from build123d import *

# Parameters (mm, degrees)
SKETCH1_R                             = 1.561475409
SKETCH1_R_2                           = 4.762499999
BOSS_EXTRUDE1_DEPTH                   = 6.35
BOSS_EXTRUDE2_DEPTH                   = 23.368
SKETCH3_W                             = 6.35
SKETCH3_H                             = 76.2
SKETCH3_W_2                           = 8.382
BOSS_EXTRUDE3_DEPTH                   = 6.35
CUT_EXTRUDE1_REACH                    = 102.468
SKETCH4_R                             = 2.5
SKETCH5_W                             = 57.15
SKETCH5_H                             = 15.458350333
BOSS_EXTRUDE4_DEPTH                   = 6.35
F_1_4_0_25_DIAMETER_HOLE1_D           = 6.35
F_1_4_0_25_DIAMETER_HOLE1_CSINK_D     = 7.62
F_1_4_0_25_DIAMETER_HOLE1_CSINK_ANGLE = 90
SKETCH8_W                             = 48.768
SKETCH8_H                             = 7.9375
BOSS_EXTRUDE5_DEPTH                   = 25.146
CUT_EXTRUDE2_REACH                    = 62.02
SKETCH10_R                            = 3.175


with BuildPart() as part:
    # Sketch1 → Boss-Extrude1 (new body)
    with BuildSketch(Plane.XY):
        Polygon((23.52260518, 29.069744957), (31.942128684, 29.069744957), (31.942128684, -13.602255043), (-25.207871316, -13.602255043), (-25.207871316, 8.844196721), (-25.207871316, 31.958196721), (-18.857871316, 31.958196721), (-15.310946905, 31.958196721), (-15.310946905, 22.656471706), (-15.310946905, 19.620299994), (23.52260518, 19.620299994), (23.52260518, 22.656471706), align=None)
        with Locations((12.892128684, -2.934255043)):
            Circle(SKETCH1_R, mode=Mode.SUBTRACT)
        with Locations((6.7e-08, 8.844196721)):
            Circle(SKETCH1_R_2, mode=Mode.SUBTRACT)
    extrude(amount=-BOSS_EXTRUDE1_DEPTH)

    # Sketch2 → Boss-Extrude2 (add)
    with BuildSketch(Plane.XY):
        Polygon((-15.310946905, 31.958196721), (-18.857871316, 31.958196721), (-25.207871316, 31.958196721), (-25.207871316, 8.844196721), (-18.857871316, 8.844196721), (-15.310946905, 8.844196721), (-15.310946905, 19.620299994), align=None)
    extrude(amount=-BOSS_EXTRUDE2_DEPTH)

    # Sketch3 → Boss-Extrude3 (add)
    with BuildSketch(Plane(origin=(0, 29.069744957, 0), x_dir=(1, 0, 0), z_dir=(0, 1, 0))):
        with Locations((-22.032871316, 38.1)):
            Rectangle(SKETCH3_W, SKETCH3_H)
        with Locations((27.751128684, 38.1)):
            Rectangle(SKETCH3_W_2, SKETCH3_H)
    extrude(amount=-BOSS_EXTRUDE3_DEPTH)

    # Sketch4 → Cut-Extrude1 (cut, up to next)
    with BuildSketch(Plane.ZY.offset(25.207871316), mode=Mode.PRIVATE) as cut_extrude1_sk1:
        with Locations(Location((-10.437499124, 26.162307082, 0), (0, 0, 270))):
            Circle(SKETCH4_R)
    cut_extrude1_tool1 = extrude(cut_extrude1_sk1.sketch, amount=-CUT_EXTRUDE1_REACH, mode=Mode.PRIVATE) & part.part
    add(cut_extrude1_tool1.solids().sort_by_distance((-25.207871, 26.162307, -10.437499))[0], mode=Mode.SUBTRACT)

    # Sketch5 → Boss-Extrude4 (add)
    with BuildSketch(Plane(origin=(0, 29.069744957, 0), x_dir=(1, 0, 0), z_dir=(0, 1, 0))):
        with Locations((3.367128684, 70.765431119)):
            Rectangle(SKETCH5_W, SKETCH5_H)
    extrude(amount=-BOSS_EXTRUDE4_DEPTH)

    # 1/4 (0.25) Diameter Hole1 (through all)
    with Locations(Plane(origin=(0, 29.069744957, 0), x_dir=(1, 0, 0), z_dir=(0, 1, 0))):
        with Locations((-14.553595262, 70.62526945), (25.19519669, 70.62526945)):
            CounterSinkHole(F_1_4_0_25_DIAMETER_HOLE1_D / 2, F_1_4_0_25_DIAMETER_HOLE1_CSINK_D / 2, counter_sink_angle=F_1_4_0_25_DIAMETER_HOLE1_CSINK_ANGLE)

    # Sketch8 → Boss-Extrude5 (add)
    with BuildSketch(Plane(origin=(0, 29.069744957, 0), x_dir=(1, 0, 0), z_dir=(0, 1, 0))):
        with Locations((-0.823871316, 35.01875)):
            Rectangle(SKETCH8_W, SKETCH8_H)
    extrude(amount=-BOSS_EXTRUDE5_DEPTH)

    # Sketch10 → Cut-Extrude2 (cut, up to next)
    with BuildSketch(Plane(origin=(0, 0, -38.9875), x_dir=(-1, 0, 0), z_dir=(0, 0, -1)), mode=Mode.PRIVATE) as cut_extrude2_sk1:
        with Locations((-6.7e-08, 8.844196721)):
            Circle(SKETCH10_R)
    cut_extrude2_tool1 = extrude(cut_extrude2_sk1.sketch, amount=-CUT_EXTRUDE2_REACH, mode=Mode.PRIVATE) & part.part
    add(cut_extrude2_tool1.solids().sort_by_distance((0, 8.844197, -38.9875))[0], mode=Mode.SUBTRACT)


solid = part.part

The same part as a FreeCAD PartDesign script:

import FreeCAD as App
import Part
import Sketcher

V = App.Vector
Q = App.Units.Quantity

doc = App.newDocument("Part")
body = doc.addObject("PartDesign::Body", "Body")

sketch1 = body.newObject("Sketcher::SketchObject", "Sketch")
sketch1.AttachmentSupport = (doc.getObject("XY_Plane"), [""])
sketch1.MapMode = "FlatFace"
sketch1.addGeometry([
    Part.LineSegment(V(31.9, 29.1, 0), V(23.5, 29.1, 0)),
    Part.LineSegment(V(23.5, 29.1, 0), V(23.5, 19.6, 0)),
    Part.LineSegment(V(23.5, 19.6, 0), V(-15.3, 19.6, 0)),
    Part.LineSegment(V(-15.3, 19.6, 0), V(-15.3, 32, 0)),
    Part.LineSegment(V(-15.3, 32, 0), V(-25.2, 32, 0)),
    Part.LineSegment(V(-25.2, 32, 0), V(-25.2, -13.6, 0)),
    Part.LineSegment(V(-25.2, -13.6, 0), V(31.9, -13.6, 0)),
    Part.LineSegment(V(31.9, -13.6, 0), V(31.9, 29.1, 0)),
    Part.Circle(V(12.9, -2.9, 0), V(0, 0, 1), 1.6),
    Part.Circle(V(0, 8.8, 0), V(0, 0, 1), 4.8),
], False)
sketch1.addConstraint([
    Sketcher.Constraint("Coincident", 0, 2, 1, 1),
    Sketcher.Constraint("Coincident", 1, 2, 2, 1),
    Sketcher.Constraint("Coincident", 2, 2, 3, 1),
    Sketcher.Constraint("Coincident", 3, 2, 4, 1),
    Sketcher.Constraint("Coincident", 4, 2, 5, 1),
    Sketcher.Constraint("Coincident", 5, 2, 6, 1),
    Sketcher.Constraint("Coincident", 6, 2, 7, 1),
    Sketcher.Constraint("Coincident", 7, 2, 0, 1),
    Sketcher.Constraint("Horizontal", 0),
    Sketcher.Constraint("Vertical", 1),
    Sketcher.Constraint("Horizontal", 2),
    Sketcher.Constraint("Vertical", 3),
    Sketcher.Constraint("Horizontal", 4),
    Sketcher.Constraint("Vertical", 5),
    Sketcher.Constraint("Horizontal", 6),
    Sketcher.Constraint("Vertical", 7),
    Sketcher.Constraint("PointOnObject", 9, 3, -2),
    Sketcher.Constraint("Diameter", 9, Q("0.375 in")),
    Sketcher.Constraint("DistanceX", 6, 1, 6, 2, Q("2.25 in")),
    Sketcher.Constraint("DistanceY", 7, 1, 7, 2, Q("1.68 in")),
    Sketcher.Constraint("DistanceX", 5, 2, 8, 3, Q("1.5 in")),
    Sketcher.Constraint("DistanceY", 8, 3, 0, 2, Q("1.26 in")),
    Sketcher.Constraint("DistanceY", 9, 3, 3, 2, Q("0.91 in")),
    Sketcher.Constraint("Diameter", 8, 3.122951),
    Sketcher.Constraint("DistanceY", 5, 2, 5, 1, 45.560452),
    Sketcher.Constraint("DistanceY", -1, 1, 1, 2, 19.6203),
    Sketcher.Constraint("DistanceX", 0, 2, 0, 1, 8.419524),
    Sketcher.Constraint("DistanceX", 2, 2, 2, 1, 38.833552),
    Sketcher.Constraint("DistanceY", 1, 2, 1, 1, 9.449445),
    Sketcher.Constraint("DistanceX", -1, 1, 8, 3, 12.892129),
])
pad1 = body.newObject("PartDesign::Pad", "Pad")
pad1.Profile = sketch1
pad1.Length = Q("0.25 in")
pad1.Reversed = True

sketch2 = body.newObject("Sketcher::SketchObject", "Sketch001")
sketch2.AttachmentSupport = (doc.getObject("XY_Plane"), [""])
sketch2.MapMode = "FlatFace"
sketch2.addGeometry([
    Part.LineSegment(V(-15, 32, 0), V(-25, 32, 0)),
    Part.LineSegment(V(-25, 32, 0), V(-25, 9, 0)),
    Part.LineSegment(V(-25, 9, 0), V(-15, 9, 0)),
    Part.LineSegment(V(-15, 9, 0), V(-15, 32, 0)),
], False)
sketch2.addConstraint([
    Sketcher.Constraint("Coincident", 0, 2, 1, 1),
    Sketcher.Constraint("Coincident", 1, 2, 2, 1),
    Sketcher.Constraint("Coincident", 2, 2, 3, 1),
    Sketcher.Constraint("Coincident", 3, 2, 0, 1),
    Sketcher.Constraint("Horizontal", 0),
    Sketcher.Constraint("Vertical", 1),
    Sketcher.Constraint("Horizontal", 2),
    Sketcher.Constraint("Vertical", 3),
    Sketcher.Constraint("DistanceY", 1, 2, 1, 1, Q("0.91 in")),
    Sketcher.Constraint("DistanceX", 0, 2, 0, 1, 9.896924),
    Sketcher.Constraint("DistanceX", 0, 2, -1, 1, 25.207871),
    Sketcher.Constraint("DistanceY", -1, 1, 0, 2, 31.958197),
])
pad2 = body.newObject("PartDesign::Pad", "Pad001")
pad2.Profile = sketch2
pad2.Length = Q("0.92 in")
pad2.Reversed = True

sketch3 = body.newObject("Sketcher::SketchObject", "Sketch002")
sketch3.AttachmentSupport = (doc.getObject("XZ_Plane"), [""])
sketch3.MapMode = "FlatFace"
sketch3.AttachmentOffset = App.Placement(V(0, 0, -29.069745), App.Rotation())
sketch3.addGeometry([
    Part.LineSegment(V(-25, -76, 0), V(-25, 0, 0)),
    Part.LineSegment(V(-25, 0, 0), V(-19, 0, 0)),
    Part.LineSegment(V(-19, 0, 0), V(-19, -76, 0)),
    Part.LineSegment(V(-19, -76, 0), V(-25, -76, 0)),
    Part.LineSegment(V(24, -76, 0), V(24, 0, 0)),
    Part.LineSegment(V(24, 0, 0), V(32, 0, 0)),
    Part.LineSegment(V(32, 0, 0), V(32, -76, 0)),
    Part.LineSegment(V(32, -76, 0), V(24, -76, 0)),
], False)
sketch3.addConstraint([
    Sketcher.Constraint("Coincident", 0, 2, 1, 1),
    Sketcher.Constraint("Coincident", 1, 2, 2, 1),
    Sketcher.Constraint("Coincident", 2, 2, 3, 1),
    Sketcher.Constraint("Coincident", 3, 2, 0, 1),
    Sketcher.Constraint("Coincident", 4, 2, 5, 1),
    Sketcher.Constraint("Coincident", 5, 2, 6, 1),
    Sketcher.Constraint("Coincident", 6, 2, 7, 1),
    Sketcher.Constraint("Coincident", 7, 2, 4, 1),
    Sketcher.Constraint("Vertical", 0),
    Sketcher.Constraint("Horizontal", 1),
    Sketcher.Constraint("Vertical", 2),
    Sketcher.Constraint("Horizontal", 3),
    Sketcher.Constraint("Vertical", 4),
    Sketcher.Constraint("Horizontal", 5),
    Sketcher.Constraint("Vertical", 6),
    Sketcher.Constraint("Horizontal", 7),
    Sketcher.Constraint("PointOnObject", 0, 2, -1),
    Sketcher.Constraint("PointOnObject", 4, 2, -1),
    Sketcher.Constraint("Horizontal", 3, 2, 6, 2),
    Sketcher.Constraint("DistanceY", 0, 1, 0, 2, Q("3 in")),
    Sketcher.Constraint("DistanceX", 1, 2, 5, 2, Q("2 in")),
    Sketcher.Constraint("DistanceX", 1, 1, 1, 2, Q("0.25 in")),
    Sketcher.Constraint("DistanceX", 5, 1, 5, 2, Q("0.33 in")),
    Sketcher.Constraint("DistanceX", 0, 2, -1, 1, 25.207871),
])
pad3 = body.newObject("PartDesign::Pad", "Pad002")
pad3.Profile = sketch3
pad3.Length = Q("0.25 in")

sketch4 = body.newObject("Sketcher::SketchObject", "Sketch003")
sketch4.AttachmentSupport = (doc.getObject("YZ_Plane"), [""])
sketch4.MapMode = "FlatFace"
sketch4.AttachmentOffset = App.Placement(V(0, 0, -25.207871), App.Rotation())
sketch4.addGeometry(Part.Circle(V(26.2, -10.4, 0), V(0, 0, 1), 2.5), False)
sketch4.addConstraint([
    Sketcher.Constraint("Diameter", 0, 5.0),
    Sketcher.Constraint("DistanceY", 0, 3, -1, 1, 10.437499),
    Sketcher.Constraint("DistanceX", -1, 1, 0, 3, 26.162307),
])
pocket1 = body.newObject("PartDesign::Pocket", "Pocket")
pocket1.Profile = sketch4
pocket1.Type = "UpToFirst"
pocket1.Reversed = True

sketch5 = body.newObject("Sketcher::SketchObject", "Sketch004")
sketch5.AttachmentSupport = (doc.getObject("XZ_Plane"), [""])
sketch5.MapMode = "FlatFace"
sketch5.AttachmentOffset = App.Placement(V(0, 0, -29.069745), App.Rotation())
sketch5.addGeometry([
    Part.LineSegment(V(-25, -78, 0), V(-25, -63, 0)),
    Part.LineSegment(V(-25, -63, 0), V(32, -63, 0)),
    Part.LineSegment(V(32, -63, 0), V(32, -78, 0)),
    Part.LineSegment(V(32, -78, 0), V(-25, -78, 0)),
], False)
sketch5.addConstraint([
    Sketcher.Constraint("Coincident", 0, 2, 1, 1),
    Sketcher.Constraint("Coincident", 1, 2, 2, 1),
    Sketcher.Constraint("Coincident", 2, 2, 3, 1),
    Sketcher.Constraint("Coincident", 3, 2, 0, 1),
    Sketcher.Constraint("Vertical", 0),
    Sketcher.Constraint("Horizontal", 1),
    Sketcher.Constraint("Vertical", 2),
    Sketcher.Constraint("Horizontal", 3),
    Sketcher.Constraint("DistanceX", 1, 1, 1, 2, Q("2.25 in")),
    Sketcher.Constraint("DistanceY", 0, 1, 0, 2, 15.45835),
    Sketcher.Constraint("DistanceX", 0, 2, -1, 1, 25.207871),
    Sketcher.Constraint("DistanceY", 0, 2, -1, 1, 63.036256),
])
pad4 = body.newObject("PartDesign::Pad", "Pad003")
pad4.Profile = sketch5
pad4.Length = Q("0.25 in")

sketch6 = body.newObject("Sketcher::SketchObject", "Sketch005")
sketch6.AttachmentSupport = (doc.getObject("XZ_Plane"), [""])
sketch6.MapMode = "FlatFace"
sketch6.AttachmentOffset = App.Placement(V(0, 0, -29.069745), App.Rotation())
sketch6.addGeometry([
    Part.Circle(V(-14.6, -70.6, 0), V(0, 0, 1), 3.2),
    Part.Circle(V(25.2, -70.6, 0), V(0, 0, 1), 3.2),
], False)
sketch6.addConstraint([
    Sketcher.Constraint("Equal", 0, 1),
    Sketcher.Constraint("Horizontal", 0, 3, 1, 3),
    Sketcher.Constraint("Diameter", 0, Q("0.25 in")),
    Sketcher.Constraint("DistanceY", 0, 3, -1, 1, 70.625269),
    Sketcher.Constraint("DistanceX", 0, 3, 1, 3, 39.748792),
    Sketcher.Constraint("DistanceX", 0, 3, -1, 1, 14.553595),
])
doc.recompute()
hole = body.newObject("PartDesign::Hole", "Hole")
hole.Profile = sketch6
hole.ThreadType = "None"
hole.Diameter = Q("0.25 in")
hole.DepthType = "ThroughAll"
hole.HoleCutType = "Countersink"
hole.HoleCutDiameter = Q("0.3 in")
hole.HoleCutCountersinkAngle = 90
hole.Reversed = True

sketch7 = body.newObject("Sketcher::SketchObject", "Sketch006")
sketch7.AttachmentSupport = (doc.getObject("XZ_Plane"), [""])
sketch7.MapMode = "FlatFace"
sketch7.AttachmentOffset = App.Placement(V(0, 0, -29.069745), App.Rotation())
sketch7.addGeometry([
    Part.LineSegment(V(-25, -39, 0), V(-25, -31, 0)),
    Part.LineSegment(V(-25, -31, 0), V(24, -31, 0)),
    Part.LineSegment(V(24, -31, 0), V(24, -39, 0)),
    Part.LineSegment(V(24, -39, 0), V(-25, -39, 0)),
], False)
sketch7.addConstraint([
    Sketcher.Constraint("Coincident", 0, 2, 1, 1),
    Sketcher.Constraint("Coincident", 1, 2, 2, 1),
    Sketcher.Constraint("Coincident", 2, 2, 3, 1),
    Sketcher.Constraint("Coincident", 3, 2, 0, 1),
    Sketcher.Constraint("Vertical", 0),
    Sketcher.Constraint("Horizontal", 1),
    Sketcher.Constraint("Vertical", 2),
    Sketcher.Constraint("Horizontal", 3),
    Sketcher.Constraint("DistanceX", 1, 1, 1, 2, Q("1.92 in")),
    Sketcher.Constraint("DistanceY", 0, 1, 0, 2, Q("0.3125 in")),
    Sketcher.Constraint("DistanceY", 0, 2, -1, 1, 31.05),
    Sketcher.Constraint("DistanceX", 0, 2, -1, 1, 25.207871),
])
pad5 = body.newObject("PartDesign::Pad", "Pad004")
pad5.Profile = sketch7
pad5.Length = Q("0.99 in")

sketch8 = body.newObject("Sketcher::SketchObject", "Sketch007")
sketch8.AttachmentSupport = (doc.getObject("XY_Plane"), [""])
sketch8.MapMode = "FlatFace"
sketch8.AttachmentOffset = App.Placement(V(0, 0, -38.9875), App.Rotation())
sketch8.addGeometry(Part.Circle(V(0, 8.8, 0), V(0, 0, 1), 3.2), False)
sketch8.addConstraint([
    Sketcher.Constraint("PointOnObject", 0, 3, -2),
    Sketcher.Constraint("Diameter", 0, Q("0.25 in")),
    Sketcher.Constraint("DistanceY", -1, 1, 0, 3, 8.844197),
])
pocket2 = body.newObject("PartDesign::Pocket", "Pocket001")
pocket2.Profile = sketch8
pocket2.Type = "UpToFirst"
pocket2.Reversed = True

doc.recompute()
